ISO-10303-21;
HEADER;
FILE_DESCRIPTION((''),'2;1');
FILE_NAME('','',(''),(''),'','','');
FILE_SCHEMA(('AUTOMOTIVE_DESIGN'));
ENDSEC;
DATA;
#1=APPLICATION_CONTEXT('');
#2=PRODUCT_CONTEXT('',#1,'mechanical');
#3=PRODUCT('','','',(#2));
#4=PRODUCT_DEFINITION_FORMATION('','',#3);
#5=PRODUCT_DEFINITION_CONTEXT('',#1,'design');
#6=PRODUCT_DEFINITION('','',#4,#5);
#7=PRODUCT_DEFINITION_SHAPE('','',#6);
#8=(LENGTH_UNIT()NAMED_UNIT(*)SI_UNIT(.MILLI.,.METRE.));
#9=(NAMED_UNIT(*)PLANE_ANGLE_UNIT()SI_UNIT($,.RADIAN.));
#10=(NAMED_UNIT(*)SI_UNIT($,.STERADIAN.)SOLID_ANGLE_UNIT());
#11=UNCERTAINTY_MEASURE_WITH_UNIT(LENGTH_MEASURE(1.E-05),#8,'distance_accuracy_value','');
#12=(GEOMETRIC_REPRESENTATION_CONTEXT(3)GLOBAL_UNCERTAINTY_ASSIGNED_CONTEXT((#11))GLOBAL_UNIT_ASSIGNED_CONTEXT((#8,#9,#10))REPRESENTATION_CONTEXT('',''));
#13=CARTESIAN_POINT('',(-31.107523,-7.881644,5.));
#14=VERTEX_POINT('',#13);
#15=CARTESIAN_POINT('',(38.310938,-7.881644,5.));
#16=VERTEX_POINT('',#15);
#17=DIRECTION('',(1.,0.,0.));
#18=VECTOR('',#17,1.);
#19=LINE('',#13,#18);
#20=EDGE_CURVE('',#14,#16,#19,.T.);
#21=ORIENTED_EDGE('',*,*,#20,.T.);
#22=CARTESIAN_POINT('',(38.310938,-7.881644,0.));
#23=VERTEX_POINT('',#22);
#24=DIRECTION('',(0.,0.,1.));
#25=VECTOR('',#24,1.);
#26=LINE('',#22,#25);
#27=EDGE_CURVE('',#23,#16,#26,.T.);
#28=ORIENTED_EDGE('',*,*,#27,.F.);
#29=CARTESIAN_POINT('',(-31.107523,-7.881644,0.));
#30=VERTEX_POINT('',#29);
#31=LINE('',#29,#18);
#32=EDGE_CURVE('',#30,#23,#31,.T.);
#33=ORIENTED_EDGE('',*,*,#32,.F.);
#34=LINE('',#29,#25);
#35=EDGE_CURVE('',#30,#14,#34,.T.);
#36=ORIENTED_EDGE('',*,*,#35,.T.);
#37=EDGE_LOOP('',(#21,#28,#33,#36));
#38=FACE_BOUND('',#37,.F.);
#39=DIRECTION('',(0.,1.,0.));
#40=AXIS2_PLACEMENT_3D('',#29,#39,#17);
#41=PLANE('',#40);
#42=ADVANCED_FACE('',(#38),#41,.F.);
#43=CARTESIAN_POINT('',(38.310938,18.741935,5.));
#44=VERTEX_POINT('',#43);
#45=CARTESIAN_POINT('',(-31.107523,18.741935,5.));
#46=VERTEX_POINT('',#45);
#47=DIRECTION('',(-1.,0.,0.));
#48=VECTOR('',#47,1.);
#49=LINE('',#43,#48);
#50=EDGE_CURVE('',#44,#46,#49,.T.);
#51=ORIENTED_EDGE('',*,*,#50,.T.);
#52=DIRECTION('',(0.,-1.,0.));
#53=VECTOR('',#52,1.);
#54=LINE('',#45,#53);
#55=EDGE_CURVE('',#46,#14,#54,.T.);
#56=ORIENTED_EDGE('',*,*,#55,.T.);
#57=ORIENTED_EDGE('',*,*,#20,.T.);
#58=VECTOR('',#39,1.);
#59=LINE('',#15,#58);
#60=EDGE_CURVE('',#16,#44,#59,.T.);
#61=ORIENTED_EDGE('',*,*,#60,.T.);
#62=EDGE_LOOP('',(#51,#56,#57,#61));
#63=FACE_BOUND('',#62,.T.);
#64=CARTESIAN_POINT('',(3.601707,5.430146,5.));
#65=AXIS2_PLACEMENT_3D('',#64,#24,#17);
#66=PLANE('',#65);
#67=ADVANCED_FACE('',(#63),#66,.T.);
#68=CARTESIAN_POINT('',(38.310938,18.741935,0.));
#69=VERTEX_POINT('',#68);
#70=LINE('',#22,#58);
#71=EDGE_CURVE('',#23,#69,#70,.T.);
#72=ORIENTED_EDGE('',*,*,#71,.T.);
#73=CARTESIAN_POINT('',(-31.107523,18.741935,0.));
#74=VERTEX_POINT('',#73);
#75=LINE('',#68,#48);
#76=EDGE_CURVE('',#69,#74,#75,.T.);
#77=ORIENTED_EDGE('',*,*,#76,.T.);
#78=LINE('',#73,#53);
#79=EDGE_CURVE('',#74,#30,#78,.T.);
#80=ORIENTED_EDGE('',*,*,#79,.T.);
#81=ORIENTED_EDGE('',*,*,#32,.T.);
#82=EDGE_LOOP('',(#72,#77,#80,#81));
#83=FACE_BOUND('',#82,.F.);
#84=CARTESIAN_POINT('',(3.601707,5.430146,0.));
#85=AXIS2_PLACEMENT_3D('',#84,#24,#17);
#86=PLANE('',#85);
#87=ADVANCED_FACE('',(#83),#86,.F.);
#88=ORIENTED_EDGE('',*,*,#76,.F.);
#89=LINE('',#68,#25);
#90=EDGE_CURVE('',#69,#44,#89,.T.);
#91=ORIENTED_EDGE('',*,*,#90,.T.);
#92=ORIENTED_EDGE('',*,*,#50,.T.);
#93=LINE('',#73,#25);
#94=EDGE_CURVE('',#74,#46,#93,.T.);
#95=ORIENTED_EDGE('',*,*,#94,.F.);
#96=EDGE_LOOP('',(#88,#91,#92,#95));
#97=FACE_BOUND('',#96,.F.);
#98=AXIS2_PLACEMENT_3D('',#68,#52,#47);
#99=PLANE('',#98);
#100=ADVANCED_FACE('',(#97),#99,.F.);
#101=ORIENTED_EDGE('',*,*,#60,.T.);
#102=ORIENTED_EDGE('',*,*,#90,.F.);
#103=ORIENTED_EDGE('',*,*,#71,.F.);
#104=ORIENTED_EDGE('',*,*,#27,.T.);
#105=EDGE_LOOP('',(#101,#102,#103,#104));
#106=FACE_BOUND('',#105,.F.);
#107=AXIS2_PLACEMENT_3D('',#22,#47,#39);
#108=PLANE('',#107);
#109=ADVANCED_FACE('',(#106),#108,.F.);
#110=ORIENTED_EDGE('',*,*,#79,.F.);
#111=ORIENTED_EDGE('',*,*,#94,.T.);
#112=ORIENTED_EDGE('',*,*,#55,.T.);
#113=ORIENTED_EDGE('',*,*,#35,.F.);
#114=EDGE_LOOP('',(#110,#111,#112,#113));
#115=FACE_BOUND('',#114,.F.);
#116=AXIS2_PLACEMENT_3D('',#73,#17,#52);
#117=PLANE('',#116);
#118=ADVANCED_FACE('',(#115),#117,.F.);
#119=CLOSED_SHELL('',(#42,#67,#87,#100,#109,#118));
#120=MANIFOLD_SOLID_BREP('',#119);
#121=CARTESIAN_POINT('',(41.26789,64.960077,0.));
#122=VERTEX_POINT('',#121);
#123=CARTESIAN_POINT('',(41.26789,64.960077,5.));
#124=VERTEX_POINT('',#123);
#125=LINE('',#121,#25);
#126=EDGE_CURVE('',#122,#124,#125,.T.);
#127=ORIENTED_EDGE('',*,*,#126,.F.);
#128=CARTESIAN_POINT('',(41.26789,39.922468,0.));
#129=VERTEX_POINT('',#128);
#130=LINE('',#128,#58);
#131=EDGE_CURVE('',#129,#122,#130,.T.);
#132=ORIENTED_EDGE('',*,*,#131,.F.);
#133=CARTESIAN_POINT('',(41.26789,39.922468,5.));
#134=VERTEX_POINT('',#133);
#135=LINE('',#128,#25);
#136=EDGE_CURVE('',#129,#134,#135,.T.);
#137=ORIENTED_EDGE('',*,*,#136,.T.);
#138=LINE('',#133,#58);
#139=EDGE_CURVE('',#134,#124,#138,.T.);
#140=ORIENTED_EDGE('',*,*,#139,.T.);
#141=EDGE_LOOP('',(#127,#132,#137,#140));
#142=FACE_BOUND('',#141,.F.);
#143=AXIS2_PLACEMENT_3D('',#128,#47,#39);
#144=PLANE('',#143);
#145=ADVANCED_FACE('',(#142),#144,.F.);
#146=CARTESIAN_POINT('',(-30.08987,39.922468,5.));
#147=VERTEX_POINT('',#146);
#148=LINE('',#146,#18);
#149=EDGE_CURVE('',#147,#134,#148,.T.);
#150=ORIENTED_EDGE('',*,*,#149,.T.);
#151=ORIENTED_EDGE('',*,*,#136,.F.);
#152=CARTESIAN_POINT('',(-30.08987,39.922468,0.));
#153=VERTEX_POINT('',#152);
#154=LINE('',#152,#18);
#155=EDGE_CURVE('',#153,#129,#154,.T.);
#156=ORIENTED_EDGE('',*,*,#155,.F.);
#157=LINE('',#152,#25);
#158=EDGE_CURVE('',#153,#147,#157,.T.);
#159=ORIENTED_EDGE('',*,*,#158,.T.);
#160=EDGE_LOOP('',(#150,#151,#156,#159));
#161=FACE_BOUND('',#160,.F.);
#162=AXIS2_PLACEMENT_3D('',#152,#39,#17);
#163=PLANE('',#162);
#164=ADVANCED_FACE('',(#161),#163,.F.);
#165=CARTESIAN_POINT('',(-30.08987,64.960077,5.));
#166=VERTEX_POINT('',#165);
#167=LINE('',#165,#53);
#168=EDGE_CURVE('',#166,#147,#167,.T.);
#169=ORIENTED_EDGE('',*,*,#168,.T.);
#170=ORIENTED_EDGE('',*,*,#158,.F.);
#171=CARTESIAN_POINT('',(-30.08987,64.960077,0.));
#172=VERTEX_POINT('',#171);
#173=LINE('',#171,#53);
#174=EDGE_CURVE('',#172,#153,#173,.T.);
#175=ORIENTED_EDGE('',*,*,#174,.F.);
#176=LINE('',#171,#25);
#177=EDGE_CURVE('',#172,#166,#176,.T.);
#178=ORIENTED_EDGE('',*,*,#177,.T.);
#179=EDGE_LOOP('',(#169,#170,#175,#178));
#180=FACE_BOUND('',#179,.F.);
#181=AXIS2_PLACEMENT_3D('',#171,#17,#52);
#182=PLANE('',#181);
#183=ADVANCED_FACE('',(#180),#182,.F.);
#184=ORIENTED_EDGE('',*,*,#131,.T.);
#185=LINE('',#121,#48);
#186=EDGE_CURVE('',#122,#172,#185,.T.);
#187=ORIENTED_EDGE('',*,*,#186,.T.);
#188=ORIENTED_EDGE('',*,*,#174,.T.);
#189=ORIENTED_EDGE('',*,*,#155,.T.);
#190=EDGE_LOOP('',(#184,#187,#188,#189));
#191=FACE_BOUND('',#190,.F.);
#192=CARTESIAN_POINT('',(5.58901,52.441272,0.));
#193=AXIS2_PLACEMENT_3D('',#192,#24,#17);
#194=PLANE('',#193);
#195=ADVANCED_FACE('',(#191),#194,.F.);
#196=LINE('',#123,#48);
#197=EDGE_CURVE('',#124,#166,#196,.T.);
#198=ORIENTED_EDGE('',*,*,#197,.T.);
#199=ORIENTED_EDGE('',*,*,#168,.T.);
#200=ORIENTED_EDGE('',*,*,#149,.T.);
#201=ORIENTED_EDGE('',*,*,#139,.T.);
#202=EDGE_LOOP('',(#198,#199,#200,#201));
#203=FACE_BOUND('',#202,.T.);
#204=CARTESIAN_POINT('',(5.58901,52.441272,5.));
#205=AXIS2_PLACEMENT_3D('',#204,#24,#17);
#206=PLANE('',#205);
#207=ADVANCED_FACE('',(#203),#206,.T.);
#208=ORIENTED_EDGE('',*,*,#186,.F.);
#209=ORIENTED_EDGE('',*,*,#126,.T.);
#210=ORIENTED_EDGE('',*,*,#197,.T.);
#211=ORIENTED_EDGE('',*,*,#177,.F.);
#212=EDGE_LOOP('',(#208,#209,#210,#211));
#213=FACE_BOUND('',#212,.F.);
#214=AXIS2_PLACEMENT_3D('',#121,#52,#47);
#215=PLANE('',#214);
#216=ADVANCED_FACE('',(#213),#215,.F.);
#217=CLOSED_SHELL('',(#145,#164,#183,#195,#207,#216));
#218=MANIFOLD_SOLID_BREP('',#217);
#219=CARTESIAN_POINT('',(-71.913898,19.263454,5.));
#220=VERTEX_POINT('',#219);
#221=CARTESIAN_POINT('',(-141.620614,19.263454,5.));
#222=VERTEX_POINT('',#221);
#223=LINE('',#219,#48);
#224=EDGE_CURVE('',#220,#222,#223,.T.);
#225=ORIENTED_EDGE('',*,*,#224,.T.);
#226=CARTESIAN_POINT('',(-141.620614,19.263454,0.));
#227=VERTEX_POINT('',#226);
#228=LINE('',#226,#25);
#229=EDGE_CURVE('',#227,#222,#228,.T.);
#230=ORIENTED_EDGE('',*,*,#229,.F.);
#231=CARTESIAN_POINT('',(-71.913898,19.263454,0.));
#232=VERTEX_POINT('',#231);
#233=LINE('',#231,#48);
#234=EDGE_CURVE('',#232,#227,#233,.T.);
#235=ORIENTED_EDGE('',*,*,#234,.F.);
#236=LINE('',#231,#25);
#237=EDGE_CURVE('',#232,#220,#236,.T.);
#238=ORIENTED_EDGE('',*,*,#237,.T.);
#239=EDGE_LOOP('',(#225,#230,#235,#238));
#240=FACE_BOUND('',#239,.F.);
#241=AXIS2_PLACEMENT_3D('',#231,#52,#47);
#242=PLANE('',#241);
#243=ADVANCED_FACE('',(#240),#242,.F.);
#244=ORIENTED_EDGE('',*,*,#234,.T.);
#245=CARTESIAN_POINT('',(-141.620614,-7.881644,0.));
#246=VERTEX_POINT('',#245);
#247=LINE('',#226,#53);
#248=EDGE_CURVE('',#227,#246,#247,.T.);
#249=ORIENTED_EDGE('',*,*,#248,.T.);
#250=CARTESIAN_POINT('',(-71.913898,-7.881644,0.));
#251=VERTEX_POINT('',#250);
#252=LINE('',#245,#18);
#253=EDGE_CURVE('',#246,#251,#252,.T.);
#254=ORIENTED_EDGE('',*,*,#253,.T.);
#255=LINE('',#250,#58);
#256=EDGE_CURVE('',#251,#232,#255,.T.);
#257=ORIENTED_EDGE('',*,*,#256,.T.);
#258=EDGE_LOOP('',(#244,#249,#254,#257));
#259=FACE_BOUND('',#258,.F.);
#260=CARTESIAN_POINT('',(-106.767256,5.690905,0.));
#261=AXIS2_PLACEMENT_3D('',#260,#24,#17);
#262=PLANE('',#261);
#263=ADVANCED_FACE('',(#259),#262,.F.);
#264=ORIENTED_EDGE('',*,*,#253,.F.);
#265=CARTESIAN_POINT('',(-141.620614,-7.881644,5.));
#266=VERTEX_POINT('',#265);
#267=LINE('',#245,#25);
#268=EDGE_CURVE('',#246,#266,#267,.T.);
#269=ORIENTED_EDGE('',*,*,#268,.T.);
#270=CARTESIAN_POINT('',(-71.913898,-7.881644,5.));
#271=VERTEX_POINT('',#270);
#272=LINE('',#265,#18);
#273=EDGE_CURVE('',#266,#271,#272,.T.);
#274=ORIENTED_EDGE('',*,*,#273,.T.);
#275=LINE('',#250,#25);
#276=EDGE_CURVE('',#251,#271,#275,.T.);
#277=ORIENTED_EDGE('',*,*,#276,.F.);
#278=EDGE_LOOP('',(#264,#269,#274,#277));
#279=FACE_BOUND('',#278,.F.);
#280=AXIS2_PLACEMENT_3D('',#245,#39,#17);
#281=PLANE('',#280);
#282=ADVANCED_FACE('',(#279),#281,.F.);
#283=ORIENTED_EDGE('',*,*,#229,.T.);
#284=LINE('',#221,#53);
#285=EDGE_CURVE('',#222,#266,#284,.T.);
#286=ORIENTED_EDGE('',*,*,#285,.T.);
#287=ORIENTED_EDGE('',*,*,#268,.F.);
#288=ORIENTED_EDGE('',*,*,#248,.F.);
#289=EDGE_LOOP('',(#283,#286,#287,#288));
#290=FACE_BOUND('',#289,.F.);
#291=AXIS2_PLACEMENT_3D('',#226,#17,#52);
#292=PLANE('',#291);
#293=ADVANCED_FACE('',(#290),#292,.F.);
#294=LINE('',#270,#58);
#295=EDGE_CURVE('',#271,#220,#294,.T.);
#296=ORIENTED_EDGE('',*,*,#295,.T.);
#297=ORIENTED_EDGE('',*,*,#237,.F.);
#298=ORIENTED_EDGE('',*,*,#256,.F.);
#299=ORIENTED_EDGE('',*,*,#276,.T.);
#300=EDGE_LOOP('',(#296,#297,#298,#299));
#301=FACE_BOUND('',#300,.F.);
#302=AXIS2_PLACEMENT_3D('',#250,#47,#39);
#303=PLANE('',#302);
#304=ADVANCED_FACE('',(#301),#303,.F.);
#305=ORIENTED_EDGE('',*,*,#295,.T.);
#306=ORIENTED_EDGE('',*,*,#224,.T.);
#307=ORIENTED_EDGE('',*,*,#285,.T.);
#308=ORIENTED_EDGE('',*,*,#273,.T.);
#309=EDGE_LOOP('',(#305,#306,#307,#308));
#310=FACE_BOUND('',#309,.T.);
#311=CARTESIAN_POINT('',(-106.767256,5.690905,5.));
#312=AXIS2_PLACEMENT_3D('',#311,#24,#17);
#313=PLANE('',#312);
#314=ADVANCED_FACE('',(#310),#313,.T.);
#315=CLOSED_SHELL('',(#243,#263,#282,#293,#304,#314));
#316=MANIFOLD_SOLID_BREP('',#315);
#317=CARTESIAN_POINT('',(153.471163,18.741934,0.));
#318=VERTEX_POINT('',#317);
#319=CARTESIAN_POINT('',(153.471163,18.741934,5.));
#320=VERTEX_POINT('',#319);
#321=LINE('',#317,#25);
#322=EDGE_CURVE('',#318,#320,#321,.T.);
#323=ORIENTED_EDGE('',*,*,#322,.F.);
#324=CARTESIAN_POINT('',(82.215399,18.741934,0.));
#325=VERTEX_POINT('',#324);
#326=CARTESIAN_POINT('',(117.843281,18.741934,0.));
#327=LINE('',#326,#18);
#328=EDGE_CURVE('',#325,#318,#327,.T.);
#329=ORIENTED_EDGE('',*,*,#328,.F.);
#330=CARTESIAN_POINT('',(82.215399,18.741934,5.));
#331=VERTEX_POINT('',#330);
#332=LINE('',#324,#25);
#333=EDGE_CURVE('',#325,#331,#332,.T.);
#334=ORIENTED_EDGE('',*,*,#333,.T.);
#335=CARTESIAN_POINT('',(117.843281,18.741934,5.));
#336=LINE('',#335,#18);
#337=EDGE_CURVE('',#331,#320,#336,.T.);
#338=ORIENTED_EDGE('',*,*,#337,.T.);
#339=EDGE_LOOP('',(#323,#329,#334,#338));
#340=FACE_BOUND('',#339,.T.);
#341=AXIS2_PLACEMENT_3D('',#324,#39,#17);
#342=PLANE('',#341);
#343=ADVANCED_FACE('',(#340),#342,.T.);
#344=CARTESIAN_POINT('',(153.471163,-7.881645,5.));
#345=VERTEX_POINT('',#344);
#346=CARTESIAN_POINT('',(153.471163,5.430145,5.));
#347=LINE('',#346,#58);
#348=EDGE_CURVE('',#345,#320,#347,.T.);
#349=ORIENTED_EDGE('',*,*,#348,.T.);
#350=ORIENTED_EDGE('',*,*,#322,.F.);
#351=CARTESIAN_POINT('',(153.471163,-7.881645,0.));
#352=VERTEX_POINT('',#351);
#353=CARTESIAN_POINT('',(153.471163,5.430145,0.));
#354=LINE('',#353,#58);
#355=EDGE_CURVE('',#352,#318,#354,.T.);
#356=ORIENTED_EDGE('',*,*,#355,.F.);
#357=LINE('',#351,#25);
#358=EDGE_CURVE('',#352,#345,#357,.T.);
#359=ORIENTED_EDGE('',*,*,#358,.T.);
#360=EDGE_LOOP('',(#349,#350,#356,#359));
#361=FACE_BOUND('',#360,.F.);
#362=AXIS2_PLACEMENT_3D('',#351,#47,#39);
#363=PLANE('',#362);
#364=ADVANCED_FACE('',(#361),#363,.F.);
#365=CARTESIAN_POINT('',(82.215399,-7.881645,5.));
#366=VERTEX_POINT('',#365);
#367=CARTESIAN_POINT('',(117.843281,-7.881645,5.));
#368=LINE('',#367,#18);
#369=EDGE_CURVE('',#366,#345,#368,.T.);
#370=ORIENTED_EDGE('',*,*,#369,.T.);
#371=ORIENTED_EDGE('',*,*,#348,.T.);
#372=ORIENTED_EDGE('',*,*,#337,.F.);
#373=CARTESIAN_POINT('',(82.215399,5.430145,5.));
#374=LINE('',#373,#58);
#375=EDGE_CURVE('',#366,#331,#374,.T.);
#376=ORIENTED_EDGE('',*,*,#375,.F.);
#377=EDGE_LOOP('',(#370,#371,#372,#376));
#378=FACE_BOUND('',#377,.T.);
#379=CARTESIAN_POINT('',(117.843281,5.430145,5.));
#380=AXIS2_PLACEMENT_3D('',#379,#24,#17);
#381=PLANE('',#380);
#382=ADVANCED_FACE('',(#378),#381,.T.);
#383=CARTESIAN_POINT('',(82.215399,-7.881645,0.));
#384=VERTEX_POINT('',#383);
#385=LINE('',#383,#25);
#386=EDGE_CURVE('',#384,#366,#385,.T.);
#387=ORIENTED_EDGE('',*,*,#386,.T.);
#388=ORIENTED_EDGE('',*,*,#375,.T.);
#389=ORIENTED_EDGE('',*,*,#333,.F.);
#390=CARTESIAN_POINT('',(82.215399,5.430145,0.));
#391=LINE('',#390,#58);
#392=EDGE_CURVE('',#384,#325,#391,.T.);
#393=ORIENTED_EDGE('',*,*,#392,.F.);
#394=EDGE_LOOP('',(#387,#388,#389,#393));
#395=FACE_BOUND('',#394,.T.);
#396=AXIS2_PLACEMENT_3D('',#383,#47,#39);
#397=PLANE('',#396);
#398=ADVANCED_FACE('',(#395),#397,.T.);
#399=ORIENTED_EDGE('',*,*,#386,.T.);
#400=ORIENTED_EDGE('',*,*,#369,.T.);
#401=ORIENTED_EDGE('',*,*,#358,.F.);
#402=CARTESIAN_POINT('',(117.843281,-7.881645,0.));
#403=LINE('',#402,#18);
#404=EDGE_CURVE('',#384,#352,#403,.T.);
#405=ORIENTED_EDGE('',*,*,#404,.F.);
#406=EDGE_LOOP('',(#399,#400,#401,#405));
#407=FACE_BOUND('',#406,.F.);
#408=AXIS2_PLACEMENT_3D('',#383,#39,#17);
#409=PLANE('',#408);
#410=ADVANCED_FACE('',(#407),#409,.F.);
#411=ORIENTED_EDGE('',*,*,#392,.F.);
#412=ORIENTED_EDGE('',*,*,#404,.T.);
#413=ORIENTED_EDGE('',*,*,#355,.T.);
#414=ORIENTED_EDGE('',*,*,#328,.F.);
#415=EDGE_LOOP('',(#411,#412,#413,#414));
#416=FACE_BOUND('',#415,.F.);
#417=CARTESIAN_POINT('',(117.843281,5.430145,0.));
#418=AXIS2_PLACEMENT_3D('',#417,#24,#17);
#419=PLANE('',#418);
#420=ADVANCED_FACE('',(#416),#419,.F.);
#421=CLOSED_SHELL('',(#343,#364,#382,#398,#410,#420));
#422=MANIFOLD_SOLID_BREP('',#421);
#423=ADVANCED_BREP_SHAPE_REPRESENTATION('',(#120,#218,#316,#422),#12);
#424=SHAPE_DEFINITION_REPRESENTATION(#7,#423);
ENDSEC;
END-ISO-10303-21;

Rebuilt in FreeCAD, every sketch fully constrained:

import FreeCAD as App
import Part
import Sketcher
from FreeCAD import Vector
Q = App.Units.Quantity


def add_polygon(sketch, points):
    """Adds a closed chain of lines whose ends are joined by coincident constraints."""
    first, n = sketch.GeometryCount, len(points)
    for a, b in zip(points, points[1:] + points[:1]):
        sketch.addGeometry(Part.LineSegment(App.Vector(*a, 0), App.Vector(*b, 0)), False)
    for i in range(n):
        sketch.addConstraint(Sketcher.Constraint("Coincident", first + i, 2, first + (i + 1) % n, 1))

doc = App.newDocument("Part")
body = doc.addObject("PartDesign::Body", "Body")
body.AllowCompound = True

# Sketch on XY plane
sketch1 = body.newObject("Sketcher::SketchObject", "Sketch")
sketch1.AttachmentSupport = (doc.getObject("XY_Plane"), [""])
sketch1.MapMode = "FlatFace"
add_polygon(sketch1, [(-72, 19), (-142, 19), (-142, -8), (-72, -8)])  # lines 0-3
add_polygon(sketch1, [(41, 65), (-30, 65), (-30, 40), (41, 40)])  # lines 4-7
add_polygon(sketch1, [(38, 19), (-31, 19), (-31, -8), (38, -8)])  # lines 8-11
add_polygon(sketch1, [(82, 19), (82, -8), (153, -8), (153, 19)])  # lines 12-15
sketch1.addConstraint(Sketcher.Constraint("Horizontal", 0))
sketch1.addConstraint(Sketcher.Constraint("Vertical", 1))
sketch1.addConstraint(Sketcher.Constraint("Horizontal", 2))
sketch1.addConstraint(Sketcher.Constraint("Vertical", 3))
sketch1.addConstraint(Sketcher.Constraint("Horizontal", 4))
sketch1.addConstraint(Sketcher.Constraint("Vertical", 5))
sketch1.addConstraint(Sketcher.Constraint("Horizontal", 6))
sketch1.addConstraint(Sketcher.Constraint("Vertical", 7))
sketch1.addConstraint(Sketcher.Constraint("Horizontal", 8))
sketch1.addConstraint(Sketcher.Constraint("Vertical", 9))
sketch1.addConstraint(Sketcher.Constraint("Horizontal", 10))
sketch1.addConstraint(Sketcher.Constraint("Vertical", 11))
sketch1.addConstraint(Sketcher.Constraint("Vertical", 12))
sketch1.addConstraint(Sketcher.Constraint("Horizontal", 13))
sketch1.addConstraint(Sketcher.Constraint("Vertical", 14))
sketch1.addConstraint(Sketcher.Constraint("Horizontal", 15))
sketch1.addConstraint(Sketcher.Constraint("Horizontal", 2, 2, 9, 2))
sketch1.addConstraint(Sketcher.Constraint("Horizontal", 10, 2, 12, 2))
sketch1.addConstraint(Sketcher.Constraint("Horizontal", 11, 2, 14, 2))
sketch1.addConstraint(Sketcher.Constraint("DistanceX", 4, 2, 4, 1, Q("71.35776 mm")))
sketch1.addConstraint(Sketcher.Constraint("DistanceX", 8, 2, 8, 1, Q("69.418461 mm")))
sketch1.addConstraint(Sketcher.Constraint("DistanceY", 5, 2, 5, 1, Q("25.037609 mm")))
sketch1.addConstraint(Sketcher.Constraint("DistanceY", 9, 2, 9, 1, Q("26.623579 mm")))
sketch1.addConstraint(Sketcher.Constraint("DistanceX", 2, 2, -1, 1, Q("71.913898 mm")))
sketch1.addConstraint(Sketcher.Constraint("DistanceX", -1, 1, 12, 2, Q("82.215399 mm")))
sketch1.addConstraint(Sketcher.Constraint("DistanceX", 0, 2, 0, 1, Q("69.706716 mm")))
sketch1.addConstraint(Sketcher.Constraint("DistanceX", 13, 1, 13, 2, Q("71.255765 mm")))
sketch1.addConstraint(Sketcher.Constraint("DistanceY", 1, 2, 1, 1, Q("27.145098 mm")))
sketch1.addConstraint(Sketcher.Constraint("DistanceX", 4, 2, -1, 1, Q("30.08987 mm")))
sketch1.addConstraint(Sketcher.Constraint("DistanceY", -1, 1, 5, 2, Q("39.922468 mm")))
sketch1.addConstraint(Sketcher.Constraint("DistanceY", 2, 2, 4, 2, Q("72.841721 mm")))
sketch1.addConstraint(Sketcher.Constraint("DistanceX", 10, 2, 12, 2, Q("43.904461 mm")))
pad1 = body.newObject("PartDesign::Pad", "Pad")
pad1.Profile = sketch1
pad1.Length = 5

doc.recompute()
